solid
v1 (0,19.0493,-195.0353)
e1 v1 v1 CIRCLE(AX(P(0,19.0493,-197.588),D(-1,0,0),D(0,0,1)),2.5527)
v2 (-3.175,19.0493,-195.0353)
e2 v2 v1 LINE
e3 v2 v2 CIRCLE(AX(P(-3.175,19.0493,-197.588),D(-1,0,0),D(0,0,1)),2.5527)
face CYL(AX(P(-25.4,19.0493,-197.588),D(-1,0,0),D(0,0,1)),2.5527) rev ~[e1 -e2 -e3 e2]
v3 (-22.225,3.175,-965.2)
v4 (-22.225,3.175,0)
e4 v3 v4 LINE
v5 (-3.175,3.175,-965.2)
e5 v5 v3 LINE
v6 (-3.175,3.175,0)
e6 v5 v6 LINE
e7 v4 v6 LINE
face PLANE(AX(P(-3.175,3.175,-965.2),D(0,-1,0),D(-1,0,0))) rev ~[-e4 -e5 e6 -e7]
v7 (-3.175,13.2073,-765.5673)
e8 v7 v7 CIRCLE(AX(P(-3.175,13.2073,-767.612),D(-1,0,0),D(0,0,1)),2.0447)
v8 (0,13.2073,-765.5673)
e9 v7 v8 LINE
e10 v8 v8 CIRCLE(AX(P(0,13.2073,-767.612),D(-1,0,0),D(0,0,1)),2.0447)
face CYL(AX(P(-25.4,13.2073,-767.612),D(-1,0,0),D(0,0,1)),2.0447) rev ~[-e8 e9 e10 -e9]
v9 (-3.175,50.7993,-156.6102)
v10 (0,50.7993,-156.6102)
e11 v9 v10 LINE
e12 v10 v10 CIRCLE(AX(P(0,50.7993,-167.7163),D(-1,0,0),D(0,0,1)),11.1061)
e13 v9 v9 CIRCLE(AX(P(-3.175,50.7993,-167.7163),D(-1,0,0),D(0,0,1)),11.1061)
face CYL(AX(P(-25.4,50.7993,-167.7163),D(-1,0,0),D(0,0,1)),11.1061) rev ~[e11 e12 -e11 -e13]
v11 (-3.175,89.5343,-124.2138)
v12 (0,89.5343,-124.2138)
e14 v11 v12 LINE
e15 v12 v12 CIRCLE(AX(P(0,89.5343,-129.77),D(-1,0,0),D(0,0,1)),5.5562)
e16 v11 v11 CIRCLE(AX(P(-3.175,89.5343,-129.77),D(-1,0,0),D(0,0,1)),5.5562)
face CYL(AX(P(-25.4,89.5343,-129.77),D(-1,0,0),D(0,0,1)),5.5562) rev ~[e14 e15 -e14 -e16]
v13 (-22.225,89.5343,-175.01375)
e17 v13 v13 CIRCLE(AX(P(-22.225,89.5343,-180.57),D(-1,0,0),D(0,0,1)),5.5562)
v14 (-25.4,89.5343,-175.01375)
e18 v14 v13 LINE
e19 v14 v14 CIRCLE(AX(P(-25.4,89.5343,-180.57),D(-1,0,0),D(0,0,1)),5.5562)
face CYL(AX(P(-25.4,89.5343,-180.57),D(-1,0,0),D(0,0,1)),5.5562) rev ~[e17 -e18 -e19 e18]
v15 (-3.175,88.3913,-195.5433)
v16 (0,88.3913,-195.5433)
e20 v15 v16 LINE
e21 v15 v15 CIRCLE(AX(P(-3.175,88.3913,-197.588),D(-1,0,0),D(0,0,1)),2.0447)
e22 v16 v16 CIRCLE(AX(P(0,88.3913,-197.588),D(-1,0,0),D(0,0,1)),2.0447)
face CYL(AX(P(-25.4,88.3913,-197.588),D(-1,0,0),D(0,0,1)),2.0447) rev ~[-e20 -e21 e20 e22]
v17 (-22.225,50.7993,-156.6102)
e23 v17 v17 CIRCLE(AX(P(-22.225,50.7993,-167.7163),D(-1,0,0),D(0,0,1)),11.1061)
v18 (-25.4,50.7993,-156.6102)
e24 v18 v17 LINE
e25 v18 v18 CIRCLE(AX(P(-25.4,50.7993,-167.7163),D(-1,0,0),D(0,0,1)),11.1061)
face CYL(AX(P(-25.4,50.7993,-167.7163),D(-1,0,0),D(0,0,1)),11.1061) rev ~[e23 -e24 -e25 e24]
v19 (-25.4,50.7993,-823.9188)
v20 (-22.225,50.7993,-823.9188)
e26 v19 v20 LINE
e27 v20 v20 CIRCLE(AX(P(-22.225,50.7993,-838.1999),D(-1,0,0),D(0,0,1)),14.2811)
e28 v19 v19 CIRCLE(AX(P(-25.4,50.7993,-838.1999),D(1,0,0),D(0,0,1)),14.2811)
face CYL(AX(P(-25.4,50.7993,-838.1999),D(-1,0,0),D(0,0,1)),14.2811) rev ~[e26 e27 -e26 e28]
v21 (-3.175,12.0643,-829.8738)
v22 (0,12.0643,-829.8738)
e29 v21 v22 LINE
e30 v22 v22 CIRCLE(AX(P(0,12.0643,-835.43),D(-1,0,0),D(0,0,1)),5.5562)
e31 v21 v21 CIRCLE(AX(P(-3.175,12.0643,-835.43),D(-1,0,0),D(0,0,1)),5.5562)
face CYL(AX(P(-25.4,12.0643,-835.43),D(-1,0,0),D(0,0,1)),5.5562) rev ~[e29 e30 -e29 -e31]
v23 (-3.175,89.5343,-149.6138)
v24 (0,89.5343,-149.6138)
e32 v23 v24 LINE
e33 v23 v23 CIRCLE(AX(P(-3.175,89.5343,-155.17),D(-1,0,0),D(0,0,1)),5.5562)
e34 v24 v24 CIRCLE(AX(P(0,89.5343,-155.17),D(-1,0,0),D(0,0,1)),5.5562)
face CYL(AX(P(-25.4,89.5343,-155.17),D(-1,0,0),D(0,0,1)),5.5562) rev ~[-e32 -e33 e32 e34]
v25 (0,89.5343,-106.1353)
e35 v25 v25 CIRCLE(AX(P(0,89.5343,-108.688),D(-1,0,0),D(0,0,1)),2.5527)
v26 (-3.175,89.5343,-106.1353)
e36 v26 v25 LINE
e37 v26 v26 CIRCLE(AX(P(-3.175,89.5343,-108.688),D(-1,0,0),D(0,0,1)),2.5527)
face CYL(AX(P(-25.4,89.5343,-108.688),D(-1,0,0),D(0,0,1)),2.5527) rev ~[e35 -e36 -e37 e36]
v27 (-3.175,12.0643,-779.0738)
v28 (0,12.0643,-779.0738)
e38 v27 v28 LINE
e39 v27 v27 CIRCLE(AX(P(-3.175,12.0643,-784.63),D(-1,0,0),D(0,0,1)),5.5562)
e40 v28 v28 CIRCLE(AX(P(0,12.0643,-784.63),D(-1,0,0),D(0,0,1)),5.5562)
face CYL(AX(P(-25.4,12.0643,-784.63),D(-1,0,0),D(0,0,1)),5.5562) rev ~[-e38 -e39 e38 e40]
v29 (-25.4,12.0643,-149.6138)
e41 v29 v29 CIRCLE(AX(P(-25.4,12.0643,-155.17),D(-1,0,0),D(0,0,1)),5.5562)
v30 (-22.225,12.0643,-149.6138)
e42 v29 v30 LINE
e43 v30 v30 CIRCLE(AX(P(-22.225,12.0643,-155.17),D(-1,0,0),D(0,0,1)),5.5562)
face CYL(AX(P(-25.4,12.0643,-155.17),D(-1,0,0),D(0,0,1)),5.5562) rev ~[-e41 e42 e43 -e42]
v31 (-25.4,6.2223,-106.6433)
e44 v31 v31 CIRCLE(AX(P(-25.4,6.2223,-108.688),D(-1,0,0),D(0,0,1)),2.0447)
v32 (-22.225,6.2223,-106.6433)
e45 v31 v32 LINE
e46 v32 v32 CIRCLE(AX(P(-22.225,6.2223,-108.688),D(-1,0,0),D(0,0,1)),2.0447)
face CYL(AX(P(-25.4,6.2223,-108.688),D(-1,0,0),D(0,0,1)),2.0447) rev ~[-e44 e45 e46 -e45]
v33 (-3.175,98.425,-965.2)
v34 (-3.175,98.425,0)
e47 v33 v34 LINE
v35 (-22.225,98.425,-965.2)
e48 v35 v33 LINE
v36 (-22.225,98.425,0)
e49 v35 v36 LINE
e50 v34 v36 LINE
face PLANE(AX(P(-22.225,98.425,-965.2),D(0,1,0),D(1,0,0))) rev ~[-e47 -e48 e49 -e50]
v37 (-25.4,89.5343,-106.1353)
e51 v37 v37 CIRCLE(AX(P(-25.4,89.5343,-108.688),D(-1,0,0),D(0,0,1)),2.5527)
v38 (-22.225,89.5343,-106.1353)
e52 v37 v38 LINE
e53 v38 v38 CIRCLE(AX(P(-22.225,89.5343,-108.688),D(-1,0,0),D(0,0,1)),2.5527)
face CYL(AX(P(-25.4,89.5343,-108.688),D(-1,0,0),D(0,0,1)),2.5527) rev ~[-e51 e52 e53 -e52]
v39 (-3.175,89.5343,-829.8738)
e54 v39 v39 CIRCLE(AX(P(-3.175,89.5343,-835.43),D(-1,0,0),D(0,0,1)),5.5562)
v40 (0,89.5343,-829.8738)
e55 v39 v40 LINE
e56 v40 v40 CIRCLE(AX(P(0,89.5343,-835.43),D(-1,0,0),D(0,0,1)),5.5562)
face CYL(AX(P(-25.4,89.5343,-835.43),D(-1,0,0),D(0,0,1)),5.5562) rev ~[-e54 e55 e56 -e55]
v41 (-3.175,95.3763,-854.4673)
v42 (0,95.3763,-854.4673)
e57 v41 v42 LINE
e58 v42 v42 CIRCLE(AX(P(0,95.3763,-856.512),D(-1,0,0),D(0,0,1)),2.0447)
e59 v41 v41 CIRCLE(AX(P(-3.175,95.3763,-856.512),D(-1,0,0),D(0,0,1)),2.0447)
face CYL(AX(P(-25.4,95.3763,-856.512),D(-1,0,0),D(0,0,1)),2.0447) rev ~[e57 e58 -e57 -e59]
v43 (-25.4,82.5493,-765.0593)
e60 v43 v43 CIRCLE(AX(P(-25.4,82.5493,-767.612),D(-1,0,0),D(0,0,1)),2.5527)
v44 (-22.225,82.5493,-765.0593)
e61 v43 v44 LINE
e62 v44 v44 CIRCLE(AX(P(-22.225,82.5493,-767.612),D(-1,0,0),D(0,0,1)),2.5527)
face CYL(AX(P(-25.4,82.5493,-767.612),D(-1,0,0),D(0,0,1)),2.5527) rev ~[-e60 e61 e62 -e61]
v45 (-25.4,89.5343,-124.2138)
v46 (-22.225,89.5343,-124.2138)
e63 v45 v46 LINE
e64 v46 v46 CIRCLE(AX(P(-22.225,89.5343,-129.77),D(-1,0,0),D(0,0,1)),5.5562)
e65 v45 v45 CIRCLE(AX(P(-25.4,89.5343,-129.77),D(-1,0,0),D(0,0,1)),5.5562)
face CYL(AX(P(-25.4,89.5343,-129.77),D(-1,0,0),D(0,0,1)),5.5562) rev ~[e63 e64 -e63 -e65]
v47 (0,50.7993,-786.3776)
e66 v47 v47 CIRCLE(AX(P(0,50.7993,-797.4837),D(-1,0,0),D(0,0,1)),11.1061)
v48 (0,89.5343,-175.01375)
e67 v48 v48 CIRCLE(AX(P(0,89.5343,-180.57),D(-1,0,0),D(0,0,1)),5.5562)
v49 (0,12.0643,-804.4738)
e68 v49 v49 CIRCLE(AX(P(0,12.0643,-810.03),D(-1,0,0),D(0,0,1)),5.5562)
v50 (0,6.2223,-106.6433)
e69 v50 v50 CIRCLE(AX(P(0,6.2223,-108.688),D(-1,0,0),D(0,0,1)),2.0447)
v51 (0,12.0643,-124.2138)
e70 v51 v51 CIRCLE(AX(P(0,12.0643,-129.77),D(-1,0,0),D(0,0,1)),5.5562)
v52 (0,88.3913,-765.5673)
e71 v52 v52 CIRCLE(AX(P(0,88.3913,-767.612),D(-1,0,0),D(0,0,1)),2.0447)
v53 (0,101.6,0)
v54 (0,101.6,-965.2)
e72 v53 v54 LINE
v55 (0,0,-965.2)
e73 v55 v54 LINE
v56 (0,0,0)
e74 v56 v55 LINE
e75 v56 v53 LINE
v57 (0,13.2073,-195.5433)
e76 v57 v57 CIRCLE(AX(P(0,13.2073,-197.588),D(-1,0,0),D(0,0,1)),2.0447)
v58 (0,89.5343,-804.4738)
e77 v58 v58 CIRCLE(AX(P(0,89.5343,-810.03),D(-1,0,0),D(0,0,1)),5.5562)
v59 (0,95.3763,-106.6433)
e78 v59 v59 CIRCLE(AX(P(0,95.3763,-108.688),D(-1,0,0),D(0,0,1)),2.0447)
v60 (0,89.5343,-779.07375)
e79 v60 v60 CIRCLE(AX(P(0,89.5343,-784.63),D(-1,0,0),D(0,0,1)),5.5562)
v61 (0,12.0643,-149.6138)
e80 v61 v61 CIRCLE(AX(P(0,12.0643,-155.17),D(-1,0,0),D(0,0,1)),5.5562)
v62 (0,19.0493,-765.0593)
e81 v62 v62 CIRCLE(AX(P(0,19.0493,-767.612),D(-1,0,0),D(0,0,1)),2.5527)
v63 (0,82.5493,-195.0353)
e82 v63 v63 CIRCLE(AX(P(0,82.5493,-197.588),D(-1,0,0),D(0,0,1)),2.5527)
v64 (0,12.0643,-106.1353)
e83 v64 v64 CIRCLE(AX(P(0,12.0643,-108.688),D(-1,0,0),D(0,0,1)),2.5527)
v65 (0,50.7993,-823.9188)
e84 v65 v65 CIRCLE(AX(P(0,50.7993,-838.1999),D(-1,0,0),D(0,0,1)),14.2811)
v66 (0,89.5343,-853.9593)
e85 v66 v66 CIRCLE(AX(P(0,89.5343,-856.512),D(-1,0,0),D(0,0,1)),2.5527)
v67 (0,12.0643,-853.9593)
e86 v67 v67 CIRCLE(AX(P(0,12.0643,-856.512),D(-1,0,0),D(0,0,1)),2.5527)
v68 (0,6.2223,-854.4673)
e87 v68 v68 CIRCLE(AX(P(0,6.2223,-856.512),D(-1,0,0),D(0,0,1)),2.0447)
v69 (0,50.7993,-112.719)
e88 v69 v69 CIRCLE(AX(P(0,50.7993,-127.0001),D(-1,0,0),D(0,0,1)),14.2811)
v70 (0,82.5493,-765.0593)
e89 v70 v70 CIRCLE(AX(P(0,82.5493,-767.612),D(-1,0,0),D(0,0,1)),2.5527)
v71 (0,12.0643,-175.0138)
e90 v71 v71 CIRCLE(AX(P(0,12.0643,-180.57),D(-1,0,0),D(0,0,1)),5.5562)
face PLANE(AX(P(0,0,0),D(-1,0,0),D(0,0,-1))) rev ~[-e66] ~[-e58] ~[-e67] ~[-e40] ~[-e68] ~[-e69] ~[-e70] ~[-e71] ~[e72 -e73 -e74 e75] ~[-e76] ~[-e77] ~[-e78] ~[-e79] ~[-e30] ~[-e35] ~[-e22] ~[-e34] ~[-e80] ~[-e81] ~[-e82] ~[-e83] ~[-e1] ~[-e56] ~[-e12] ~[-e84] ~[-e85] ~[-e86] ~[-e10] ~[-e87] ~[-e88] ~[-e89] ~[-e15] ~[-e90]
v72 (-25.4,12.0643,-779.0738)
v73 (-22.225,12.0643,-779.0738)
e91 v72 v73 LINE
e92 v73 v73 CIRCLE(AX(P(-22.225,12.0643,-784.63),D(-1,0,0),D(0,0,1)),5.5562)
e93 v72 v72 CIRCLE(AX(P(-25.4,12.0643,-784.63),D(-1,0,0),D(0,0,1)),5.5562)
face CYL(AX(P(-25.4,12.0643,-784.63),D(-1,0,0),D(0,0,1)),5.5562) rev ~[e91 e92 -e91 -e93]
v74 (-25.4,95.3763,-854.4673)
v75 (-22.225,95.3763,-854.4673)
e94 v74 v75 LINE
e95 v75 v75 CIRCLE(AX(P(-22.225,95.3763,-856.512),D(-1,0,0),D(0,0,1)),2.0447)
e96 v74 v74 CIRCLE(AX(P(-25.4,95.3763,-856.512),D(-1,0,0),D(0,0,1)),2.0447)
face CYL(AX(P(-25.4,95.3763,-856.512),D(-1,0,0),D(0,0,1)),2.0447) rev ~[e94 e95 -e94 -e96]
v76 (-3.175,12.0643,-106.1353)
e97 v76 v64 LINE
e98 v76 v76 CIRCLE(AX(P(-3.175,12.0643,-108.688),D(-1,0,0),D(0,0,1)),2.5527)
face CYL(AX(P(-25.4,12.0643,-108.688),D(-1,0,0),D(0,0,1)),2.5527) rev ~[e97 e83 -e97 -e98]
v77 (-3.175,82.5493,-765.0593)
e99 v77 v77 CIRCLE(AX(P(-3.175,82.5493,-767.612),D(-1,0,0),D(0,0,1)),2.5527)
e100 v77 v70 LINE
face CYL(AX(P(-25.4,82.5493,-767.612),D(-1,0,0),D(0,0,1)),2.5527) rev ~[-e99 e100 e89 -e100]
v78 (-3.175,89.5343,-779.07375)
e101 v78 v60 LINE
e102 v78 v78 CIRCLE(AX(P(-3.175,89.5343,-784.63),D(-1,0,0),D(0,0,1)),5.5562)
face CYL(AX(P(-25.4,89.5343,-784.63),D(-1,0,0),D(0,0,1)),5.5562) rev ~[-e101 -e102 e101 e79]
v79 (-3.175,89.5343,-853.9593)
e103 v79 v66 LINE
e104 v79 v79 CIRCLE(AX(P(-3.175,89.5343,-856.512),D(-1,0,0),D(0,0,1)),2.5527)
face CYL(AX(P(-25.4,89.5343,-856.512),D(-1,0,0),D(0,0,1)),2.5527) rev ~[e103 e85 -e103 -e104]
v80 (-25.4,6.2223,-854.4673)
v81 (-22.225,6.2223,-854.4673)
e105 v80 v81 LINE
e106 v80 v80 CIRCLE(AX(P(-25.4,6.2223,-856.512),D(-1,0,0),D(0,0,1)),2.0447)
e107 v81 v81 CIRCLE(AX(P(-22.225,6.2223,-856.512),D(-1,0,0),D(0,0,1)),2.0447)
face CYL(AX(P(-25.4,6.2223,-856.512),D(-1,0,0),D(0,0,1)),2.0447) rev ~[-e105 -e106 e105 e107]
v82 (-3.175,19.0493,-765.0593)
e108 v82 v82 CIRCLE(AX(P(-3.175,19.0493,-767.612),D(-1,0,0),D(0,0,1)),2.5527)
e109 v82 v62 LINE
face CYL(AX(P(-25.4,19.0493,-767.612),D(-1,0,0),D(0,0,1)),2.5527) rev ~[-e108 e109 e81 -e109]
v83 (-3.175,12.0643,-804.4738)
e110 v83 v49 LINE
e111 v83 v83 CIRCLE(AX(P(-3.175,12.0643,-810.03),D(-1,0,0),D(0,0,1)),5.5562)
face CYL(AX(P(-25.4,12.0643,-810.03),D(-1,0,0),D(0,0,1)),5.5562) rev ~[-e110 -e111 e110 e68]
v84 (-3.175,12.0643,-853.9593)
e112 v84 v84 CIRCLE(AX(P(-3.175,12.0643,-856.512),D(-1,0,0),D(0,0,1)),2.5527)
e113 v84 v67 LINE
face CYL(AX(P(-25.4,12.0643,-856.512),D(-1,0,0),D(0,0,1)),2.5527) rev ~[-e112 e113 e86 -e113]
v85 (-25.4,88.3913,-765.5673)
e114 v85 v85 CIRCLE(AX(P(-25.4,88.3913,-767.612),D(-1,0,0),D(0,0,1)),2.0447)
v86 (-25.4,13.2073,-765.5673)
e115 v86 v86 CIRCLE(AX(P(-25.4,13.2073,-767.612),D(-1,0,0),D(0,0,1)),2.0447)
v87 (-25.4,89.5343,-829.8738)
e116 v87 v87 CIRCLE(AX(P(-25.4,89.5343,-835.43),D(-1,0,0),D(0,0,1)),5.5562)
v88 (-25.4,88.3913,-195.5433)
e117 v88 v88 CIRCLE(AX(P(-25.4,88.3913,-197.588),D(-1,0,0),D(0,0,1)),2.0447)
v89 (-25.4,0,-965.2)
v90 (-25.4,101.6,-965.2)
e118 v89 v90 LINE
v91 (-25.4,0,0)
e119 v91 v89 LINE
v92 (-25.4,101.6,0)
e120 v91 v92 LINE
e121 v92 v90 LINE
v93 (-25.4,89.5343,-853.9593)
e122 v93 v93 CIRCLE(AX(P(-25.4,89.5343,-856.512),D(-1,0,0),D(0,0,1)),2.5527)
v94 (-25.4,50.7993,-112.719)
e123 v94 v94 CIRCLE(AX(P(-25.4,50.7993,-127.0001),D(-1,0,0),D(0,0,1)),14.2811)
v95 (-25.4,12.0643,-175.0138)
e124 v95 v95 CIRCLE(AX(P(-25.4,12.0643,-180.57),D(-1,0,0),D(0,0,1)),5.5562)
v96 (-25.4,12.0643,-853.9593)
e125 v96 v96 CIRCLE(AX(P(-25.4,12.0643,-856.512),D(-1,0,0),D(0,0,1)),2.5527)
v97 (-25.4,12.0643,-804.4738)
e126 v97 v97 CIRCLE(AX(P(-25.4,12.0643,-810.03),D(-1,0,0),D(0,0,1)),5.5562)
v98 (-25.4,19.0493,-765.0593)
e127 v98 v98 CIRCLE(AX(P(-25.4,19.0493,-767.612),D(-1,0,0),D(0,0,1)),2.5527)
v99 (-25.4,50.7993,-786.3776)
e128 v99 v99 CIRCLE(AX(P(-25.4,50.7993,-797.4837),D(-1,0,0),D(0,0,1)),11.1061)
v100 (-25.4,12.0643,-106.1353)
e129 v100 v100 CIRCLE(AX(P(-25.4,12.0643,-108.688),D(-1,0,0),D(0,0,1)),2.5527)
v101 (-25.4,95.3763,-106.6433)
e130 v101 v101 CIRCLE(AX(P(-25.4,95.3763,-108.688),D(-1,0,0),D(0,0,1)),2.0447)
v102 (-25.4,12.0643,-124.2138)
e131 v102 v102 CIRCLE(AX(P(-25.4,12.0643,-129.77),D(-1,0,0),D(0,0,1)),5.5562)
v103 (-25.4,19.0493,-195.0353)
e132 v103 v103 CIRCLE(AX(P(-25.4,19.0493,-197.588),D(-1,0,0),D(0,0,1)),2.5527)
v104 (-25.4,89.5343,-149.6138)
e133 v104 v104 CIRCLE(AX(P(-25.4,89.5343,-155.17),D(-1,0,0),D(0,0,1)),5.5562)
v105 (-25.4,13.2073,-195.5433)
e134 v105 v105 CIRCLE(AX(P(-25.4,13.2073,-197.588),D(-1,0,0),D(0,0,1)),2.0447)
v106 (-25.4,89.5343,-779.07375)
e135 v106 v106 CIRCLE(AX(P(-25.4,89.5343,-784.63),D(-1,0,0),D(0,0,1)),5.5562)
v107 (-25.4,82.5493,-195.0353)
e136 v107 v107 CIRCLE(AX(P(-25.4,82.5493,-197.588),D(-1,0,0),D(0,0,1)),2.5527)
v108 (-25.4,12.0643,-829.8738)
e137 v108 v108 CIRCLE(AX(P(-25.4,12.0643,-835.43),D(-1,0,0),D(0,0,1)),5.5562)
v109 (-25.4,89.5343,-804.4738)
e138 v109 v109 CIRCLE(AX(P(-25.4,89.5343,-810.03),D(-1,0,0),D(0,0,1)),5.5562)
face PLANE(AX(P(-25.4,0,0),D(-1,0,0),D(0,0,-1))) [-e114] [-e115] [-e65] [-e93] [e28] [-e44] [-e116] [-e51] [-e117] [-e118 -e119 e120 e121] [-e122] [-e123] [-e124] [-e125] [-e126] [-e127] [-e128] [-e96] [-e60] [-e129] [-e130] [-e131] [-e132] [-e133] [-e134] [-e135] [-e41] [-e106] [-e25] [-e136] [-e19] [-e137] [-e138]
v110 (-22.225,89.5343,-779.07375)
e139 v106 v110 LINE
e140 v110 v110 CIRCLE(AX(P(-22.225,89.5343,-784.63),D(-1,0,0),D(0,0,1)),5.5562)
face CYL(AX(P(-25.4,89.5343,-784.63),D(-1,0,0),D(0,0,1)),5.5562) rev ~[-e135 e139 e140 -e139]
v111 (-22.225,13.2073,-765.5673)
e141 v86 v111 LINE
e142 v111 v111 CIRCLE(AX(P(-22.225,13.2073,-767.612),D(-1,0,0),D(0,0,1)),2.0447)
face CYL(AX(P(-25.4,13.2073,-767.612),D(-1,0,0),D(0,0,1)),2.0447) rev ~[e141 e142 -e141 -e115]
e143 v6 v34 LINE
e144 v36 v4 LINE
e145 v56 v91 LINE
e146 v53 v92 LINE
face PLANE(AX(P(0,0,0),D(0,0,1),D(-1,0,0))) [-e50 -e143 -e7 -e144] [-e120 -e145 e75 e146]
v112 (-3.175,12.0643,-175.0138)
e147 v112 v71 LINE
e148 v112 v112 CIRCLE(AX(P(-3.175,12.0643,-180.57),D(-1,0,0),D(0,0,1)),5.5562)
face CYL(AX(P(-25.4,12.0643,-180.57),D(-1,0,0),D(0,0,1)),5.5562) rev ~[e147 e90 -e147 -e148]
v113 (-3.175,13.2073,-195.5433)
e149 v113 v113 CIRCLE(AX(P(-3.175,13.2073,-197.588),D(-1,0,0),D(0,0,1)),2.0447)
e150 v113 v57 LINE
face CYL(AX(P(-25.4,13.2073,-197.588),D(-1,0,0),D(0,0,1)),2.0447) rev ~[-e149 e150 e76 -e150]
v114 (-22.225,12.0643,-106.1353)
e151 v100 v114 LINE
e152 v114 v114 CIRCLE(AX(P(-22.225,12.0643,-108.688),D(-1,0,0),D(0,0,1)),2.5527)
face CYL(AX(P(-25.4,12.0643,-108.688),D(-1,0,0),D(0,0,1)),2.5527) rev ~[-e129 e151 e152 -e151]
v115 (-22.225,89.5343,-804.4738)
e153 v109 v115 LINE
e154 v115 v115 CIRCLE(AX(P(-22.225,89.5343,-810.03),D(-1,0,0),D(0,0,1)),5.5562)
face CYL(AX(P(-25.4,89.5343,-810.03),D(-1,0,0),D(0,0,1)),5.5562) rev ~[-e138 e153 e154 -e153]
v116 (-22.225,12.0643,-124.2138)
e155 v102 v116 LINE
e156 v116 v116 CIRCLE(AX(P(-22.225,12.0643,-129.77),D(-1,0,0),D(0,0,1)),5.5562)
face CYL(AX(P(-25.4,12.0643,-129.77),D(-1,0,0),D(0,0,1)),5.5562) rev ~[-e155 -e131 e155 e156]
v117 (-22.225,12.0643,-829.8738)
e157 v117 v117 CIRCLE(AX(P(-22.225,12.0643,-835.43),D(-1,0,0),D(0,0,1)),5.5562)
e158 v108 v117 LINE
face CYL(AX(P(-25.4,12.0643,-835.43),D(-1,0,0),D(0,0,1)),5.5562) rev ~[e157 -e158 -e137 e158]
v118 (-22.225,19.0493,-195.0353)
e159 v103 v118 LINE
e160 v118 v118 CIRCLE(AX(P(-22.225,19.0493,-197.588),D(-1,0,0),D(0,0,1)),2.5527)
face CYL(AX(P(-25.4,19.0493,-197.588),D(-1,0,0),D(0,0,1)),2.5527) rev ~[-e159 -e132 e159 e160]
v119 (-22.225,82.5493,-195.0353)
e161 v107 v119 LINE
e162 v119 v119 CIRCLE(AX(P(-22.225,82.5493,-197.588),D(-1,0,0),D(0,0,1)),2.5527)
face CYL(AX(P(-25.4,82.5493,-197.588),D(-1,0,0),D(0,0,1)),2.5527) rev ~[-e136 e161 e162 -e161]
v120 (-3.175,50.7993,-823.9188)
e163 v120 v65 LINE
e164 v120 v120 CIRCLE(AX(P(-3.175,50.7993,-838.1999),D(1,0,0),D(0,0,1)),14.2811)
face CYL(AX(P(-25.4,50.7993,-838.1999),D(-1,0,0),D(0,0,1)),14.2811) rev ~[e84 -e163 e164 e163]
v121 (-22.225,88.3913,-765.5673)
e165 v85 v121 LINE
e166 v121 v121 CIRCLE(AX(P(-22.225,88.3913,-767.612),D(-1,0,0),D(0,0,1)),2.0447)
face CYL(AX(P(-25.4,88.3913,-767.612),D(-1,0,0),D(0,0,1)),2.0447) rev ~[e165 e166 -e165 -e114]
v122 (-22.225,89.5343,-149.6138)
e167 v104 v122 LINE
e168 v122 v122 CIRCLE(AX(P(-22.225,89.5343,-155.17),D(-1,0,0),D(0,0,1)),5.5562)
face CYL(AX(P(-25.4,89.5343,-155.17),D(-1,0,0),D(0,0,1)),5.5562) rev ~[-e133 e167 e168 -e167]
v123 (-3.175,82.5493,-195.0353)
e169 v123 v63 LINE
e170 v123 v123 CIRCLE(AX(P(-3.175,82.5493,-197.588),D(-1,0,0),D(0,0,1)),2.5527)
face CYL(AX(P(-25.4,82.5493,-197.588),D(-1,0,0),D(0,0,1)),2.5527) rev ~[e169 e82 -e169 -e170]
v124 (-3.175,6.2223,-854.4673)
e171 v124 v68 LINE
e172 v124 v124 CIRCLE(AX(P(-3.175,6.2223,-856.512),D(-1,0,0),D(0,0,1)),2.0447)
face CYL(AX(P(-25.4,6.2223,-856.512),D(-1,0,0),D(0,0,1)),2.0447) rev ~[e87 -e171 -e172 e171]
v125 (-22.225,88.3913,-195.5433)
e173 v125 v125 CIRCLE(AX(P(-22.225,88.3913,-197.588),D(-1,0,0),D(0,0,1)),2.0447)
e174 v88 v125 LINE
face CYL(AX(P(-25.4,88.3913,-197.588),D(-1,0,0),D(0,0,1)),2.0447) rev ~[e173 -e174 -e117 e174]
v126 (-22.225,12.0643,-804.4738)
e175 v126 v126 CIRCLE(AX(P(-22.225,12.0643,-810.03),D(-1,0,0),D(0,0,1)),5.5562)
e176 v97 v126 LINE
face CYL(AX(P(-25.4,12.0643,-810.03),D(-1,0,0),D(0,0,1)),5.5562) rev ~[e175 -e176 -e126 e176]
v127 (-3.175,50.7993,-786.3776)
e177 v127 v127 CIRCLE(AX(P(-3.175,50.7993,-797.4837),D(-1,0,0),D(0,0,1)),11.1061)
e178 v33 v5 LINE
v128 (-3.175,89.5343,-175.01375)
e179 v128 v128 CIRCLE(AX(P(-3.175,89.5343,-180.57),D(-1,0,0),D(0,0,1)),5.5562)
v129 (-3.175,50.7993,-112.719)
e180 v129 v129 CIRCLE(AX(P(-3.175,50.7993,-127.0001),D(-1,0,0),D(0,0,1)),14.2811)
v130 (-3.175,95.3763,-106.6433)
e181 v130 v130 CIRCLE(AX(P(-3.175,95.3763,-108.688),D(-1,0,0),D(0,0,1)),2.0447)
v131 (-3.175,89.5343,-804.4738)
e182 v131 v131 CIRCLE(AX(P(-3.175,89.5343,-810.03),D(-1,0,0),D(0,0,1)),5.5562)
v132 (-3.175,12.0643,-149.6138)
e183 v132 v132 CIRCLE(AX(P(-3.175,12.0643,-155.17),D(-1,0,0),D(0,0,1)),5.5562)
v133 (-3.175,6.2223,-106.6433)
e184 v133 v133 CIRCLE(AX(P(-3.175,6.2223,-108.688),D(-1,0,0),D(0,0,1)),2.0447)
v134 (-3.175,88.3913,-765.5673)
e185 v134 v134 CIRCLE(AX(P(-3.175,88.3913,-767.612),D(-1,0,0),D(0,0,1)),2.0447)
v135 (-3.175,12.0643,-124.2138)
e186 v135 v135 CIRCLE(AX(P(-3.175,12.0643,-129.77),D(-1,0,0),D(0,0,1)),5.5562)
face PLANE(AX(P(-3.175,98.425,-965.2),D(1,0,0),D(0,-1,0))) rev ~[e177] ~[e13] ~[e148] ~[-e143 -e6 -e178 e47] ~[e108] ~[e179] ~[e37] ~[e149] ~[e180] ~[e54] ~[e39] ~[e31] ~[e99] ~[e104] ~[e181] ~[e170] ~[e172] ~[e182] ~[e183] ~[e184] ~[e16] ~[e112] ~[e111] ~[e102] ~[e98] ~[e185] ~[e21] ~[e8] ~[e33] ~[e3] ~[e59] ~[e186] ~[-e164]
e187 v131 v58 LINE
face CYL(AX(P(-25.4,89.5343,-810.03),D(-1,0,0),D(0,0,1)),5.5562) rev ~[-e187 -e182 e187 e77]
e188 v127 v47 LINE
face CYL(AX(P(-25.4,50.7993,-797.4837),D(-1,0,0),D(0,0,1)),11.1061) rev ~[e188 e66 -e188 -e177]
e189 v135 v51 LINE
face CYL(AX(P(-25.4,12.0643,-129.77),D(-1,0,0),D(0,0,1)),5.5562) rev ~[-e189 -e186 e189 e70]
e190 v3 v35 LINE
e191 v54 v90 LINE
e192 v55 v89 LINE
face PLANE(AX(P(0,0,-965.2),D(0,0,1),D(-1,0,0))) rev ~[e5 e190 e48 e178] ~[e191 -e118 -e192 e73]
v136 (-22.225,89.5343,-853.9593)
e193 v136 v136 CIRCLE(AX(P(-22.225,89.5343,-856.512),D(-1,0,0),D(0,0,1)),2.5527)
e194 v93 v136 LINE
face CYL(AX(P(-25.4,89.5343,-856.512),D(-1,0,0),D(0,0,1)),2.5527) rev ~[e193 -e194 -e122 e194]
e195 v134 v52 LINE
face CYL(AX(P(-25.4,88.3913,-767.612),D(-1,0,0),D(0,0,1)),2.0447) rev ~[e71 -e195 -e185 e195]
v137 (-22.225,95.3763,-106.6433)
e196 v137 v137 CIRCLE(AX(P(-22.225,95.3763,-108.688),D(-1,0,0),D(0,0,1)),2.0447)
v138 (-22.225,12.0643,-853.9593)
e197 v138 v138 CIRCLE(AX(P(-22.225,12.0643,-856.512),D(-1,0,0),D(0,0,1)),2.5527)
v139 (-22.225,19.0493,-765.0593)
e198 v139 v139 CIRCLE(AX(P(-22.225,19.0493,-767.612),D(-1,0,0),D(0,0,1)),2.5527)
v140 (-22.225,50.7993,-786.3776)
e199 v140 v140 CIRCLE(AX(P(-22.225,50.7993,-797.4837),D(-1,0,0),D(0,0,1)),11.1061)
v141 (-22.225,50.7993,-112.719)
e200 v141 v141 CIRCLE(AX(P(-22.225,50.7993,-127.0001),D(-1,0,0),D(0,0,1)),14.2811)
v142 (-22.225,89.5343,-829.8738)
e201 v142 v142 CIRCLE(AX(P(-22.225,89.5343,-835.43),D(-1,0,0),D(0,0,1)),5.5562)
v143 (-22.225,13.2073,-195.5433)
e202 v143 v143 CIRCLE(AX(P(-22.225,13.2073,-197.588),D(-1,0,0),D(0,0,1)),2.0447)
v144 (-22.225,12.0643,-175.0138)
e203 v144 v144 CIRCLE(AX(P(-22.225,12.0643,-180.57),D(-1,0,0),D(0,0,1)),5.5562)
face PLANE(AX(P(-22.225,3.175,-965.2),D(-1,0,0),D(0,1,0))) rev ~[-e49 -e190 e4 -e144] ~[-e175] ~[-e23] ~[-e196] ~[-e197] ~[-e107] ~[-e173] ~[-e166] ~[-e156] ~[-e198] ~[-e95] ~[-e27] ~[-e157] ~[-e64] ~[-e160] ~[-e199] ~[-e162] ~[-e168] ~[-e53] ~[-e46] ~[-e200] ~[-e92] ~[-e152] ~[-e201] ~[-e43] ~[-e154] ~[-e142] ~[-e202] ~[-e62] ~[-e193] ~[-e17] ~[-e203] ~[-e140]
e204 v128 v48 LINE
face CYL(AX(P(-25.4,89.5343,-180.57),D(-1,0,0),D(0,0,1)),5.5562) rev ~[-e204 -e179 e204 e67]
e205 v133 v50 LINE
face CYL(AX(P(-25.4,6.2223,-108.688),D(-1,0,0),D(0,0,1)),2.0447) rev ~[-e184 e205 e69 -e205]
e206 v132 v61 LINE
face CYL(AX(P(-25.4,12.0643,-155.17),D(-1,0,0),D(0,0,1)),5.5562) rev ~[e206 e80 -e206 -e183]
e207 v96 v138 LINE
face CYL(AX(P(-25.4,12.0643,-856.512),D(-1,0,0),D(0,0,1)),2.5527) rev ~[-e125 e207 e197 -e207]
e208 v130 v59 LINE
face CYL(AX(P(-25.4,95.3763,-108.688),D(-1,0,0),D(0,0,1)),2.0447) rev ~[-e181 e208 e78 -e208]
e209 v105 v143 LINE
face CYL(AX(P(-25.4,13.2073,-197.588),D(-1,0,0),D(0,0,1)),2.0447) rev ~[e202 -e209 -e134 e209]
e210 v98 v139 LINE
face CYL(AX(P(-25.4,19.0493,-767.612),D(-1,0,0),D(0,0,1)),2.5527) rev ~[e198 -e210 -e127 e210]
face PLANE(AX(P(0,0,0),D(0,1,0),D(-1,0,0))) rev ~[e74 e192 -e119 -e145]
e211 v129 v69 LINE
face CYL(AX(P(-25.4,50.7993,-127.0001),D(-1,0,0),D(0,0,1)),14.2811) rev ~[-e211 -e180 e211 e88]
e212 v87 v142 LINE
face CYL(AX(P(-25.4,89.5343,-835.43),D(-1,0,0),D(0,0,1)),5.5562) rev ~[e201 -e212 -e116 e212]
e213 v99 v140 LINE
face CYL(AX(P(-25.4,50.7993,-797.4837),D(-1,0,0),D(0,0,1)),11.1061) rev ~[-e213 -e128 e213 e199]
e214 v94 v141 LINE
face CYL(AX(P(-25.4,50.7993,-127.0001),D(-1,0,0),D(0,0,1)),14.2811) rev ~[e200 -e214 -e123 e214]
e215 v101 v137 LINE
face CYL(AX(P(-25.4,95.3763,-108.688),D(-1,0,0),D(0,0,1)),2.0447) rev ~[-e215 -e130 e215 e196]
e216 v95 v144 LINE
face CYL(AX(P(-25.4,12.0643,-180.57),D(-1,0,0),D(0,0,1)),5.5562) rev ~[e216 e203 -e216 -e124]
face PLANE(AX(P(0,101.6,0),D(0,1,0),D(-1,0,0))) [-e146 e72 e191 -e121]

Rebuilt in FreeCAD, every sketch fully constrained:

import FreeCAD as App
import Part
import Sketcher
Q = App.Units.Quantity

doc = App.newDocument("Part")
params = doc.addObject("Spreadsheet::Sheet", "Params")
for row, (alias, value) in enumerate([
    ("sketch1_width", "1 in"),
    ("sketch1_height", "38 in"),
    ("pad1_length", "4 in"),
    ("sketch2_width", "0.75 in"),
    ("sketch2_height", "3.75 in"),
    ("pocket1_length", "100 in"),
    ("pocket2_length", "100 in"),
    ("sketch4_diameter", "0.161 in"),
    ("sketch4_diameter2", "0.201 in"),
    ("sketch4_diameter3", "0.4375 in"),
    ("pocket3_length", "100 in"),
    ("sketch5_diameter", "0.161 in"),
    ("sketch5_diameter2", "0.201 in"),
    ("sketch5_diameter3", "0.4375 in"),
], start=1):
    params.set(f"A{row}", alias)
    params.set(f"B{row}", "=" + value)
    params.setAlias(f"B{row}", alias)

body = doc.addObject("PartDesign::Body", "Body")

# Sketch on XZ plane
sketch1 = body.newObject("Sketcher::SketchObject", "Sketch")
sketch1.AttachmentSupport = (doc.getObject("XZ_Plane"), [""])
sketch1.MapMode = "FlatFace"
sketch1.addGeometry(Part.LineSegment(App.Vector(-25.4, 0, 0), App.Vector(0, 0, 0)), False)
sketch1.addGeometry(Part.LineSegment(App.Vector(0, 0, 0), App.Vector(0, -965.2, 0)), False)
sketch1.addGeometry(Part.LineSegment(App.Vector(0, -965.2, 0), App.Vector(-25.4, -965.2, 0)), False)
sketch1.addGeometry(Part.LineSegment(App.Vector(-25.4, -965.2, 0), App.Vector(-25.4, 0, 0)), False)
sketch1.addConstraint(Sketcher.Constraint("Coincident", 0, 2, 1, 1))
sketch1.addConstraint(Sketcher.Constraint("Coincident", 1, 2, 2, 1))
sketch1.addConstraint(Sketcher.Constraint("Coincident", 2, 2, 3, 1))
sketch1.addConstraint(Sketcher.Constraint("Coincident", 3, 2, 0, 1))
sketch1.addConstraint(Sketcher.Constraint("Horizontal", 0))
sketch1.addConstraint(Sketcher.Constraint("Vertical", 1))
sketch1.addConstraint(Sketcher.Constraint("Horizontal", 2))
sketch1.addConstraint(Sketcher.Constraint("Vertical", 3))
sketch1.addConstraint(Sketcher.Constraint("Coincident", 0, 2, -1, 1))
sketch1.addConstraint(Sketcher.Constraint("DistanceX", 0, 1, 0, 2, Q("1 in")))
sketch1.addConstraint(Sketcher.Constraint("DistanceY", 1, 2, 1, 1, Q("38 in")))
sketch1.setExpression("Constraints[9]", "Params.sketch1_width")
sketch1.setExpression("Constraints[10]", "Params.sketch1_height")
pad1 = body.newObject("PartDesign::Pad", "Pad")
pad1.Profile = sketch1
pad1.setExpression("Length", "Params.pad1_length")
pad1.Reversed = True

# Sketch on XY plane
sketch2 = body.newObject("Sketcher::SketchObject", "Sketch001")
sketch2.AttachmentSupport = (doc.getObject("XY_Plane"), [""])
sketch2.MapMode = "FlatFace"
sketch2.AttachmentOffset = App.Placement(App.Vector(0, 0, -38 * 25.4), App.Rotation())
sketch2.addGeometry(Part.LineSegment(App.Vector(-22.225, 3.175, 0), App.Vector(-22.225, 98.425, 0)), False)
sketch2.addGeometry(Part.LineSegment(App.Vector(-22.225, 98.425, 0), App.Vector(-3.175, 98.425, 0)), False)
sketch2.addGeometry(Part.LineSegment(App.Vector(-3.175, 98.425, 0), App.Vector(-3.175, 3.175, 0)), False)
sketch2.addGeometry(Part.LineSegment(App.Vector(-3.175, 3.175, 0), App.Vector(-22.225, 3.175, 0)), False)
sketch2.addConstraint(Sketcher.Constraint("Coincident", 0, 2, 1, 1))
sketch2.addConstraint(Sketcher.Constraint("Coincident", 1, 2, 2, 1))
sketch2.addConstraint(Sketcher.Constraint("Coincident", 2, 2, 3, 1))
sketch2.addConstraint(Sketcher.Constraint("Coincident", 3, 2, 0, 1))
sketch2.addConstraint(Sketcher.Constraint("Vertical", 0))
sketch2.addConstraint(Sketcher.Constraint("Horizontal", 1))
sketch2.addConstraint(Sketcher.Constraint("Vertical", 2))
sketch2.addConstraint(Sketcher.Constraint("Horizontal", 3))
sketch2.addConstraint(Sketcher.Constraint("DistanceX", 1, 1, 1, 2, Q("0.75 in")))
sketch2.addConstraint(Sketcher.Constraint("DistanceY", 0, 1, 0, 2, Q("3.75 in")))
sketch2.addConstraint(Sketcher.Constraint("DistanceX", 0, 2, -1, 1, Q("0.875 in")))
sketch2.addConstraint(Sketcher.Constraint("DistanceY", -1, 1, 0, 2, Q("3.875 in")))
sketch2.setExpression("Constraints[8]", "Params.sketch2_width")
sketch2.setExpression("Constraints[9]", "Params.sketch2_height")
pocket1 = body.newObject("PartDesign::Pocket", "Pocket")
pocket1.Profile = sketch2
pocket1.setExpression("Length", "Params.pocket1_length")
pocket1.Reversed = True

# Sketch on YZ plane
sketch3 = body.newObject("Sketcher::SketchObject", "Sketch002")
sketch3.AttachmentSupport = (doc.getObject("YZ_Plane"), [""])
sketch3.MapMode = "FlatFace"
sketch3.AttachmentOffset = App.Placement(App.Vector(0, 0, -1 * 25.4), App.Rotation())
sketch3.addGeometry(Part.Circle(App.Vector(50.7993, -838.1999, 0), App.Vector(0, 0, 1), 14.2811), False)
sketch3.addConstraint(Sketcher.Constraint("DistanceY", 0, 3, -1, 1, Q("33 in")))
sketch3.addConstraint(Sketcher.Constraint("Diameter", 0, Q("1.1245 in")))
sketch3.addConstraint(Sketcher.Constraint("DistanceX", -1, 1, 0, 3, 50.7993))
pocket2 = body.newObject("PartDesign::Pocket", "Pocket001")
pocket2.Profile = sketch3
pocket2.setExpression("Length", "Params.pocket2_length")
pocket2.Reversed = True

# Sketch on YZ plane
sketch4 = body.newObject("Sketcher::SketchObject", "Sketch003")
sketch4.AttachmentSupport = (doc.getObject("YZ_Plane"), [""])
sketch4.MapMode = "FlatFace"
sketch4.AttachmentOffset = App.Placement(App.Vector(0, 0, -1 * 25.4), App.Rotation())
sketch4.addGeometry(Part.Circle(App.Vector(6.2223, -856.512, 0), App.Vector(0, 0, 1), 2.0447), False)
sketch4.addGeometry(Part.Circle(App.Vector(88.3913, -767.612, 0), App.Vector(0, 0, 1), 2.0447), False)
sketch4.addGeometry(Part.Circle(App.Vector(12.0643, -856.512, 0), App.Vector(0, 0, 1), 2.5527), False)
sketch4.addGeometry(Part.Circle(App.Vector(82.5493, -767.612, 0), App.Vector(0, 0, 1), 2.5527), False)
sketch4.addGeometry(Part.Circle(App.Vector(12.0643, -784.63, 0), App.Vector(0, 0, 1), 5.5562), False)
sketch4.addGeometry(Part.Circle(App.Vector(12.0643, -835.43, 0), App.Vector(0, 0, 1), 5.5562), False)
sketch4.addGeometry(Part.Circle(App.Vector(89.5343, -784.63, 0), App.Vector(0, 0, 1), 5.5562), False)
sketch4.addGeometry(Part.Circle(App.Vector(50.7993, -797.4837, 0), App.Vector(0, 0, 1), 11.1061), False)
sketch4.addGeometry(Part.Circle(App.Vector(89.5343, -810.03, 0), App.Vector(0, 0, 1), 5.5562), False)
sketch4.addGeometry(Part.Circle(App.Vector(89.5343, -835.43, 0), App.Vector(0, 0, 1), 5.5562), False)
sketch4.addGeometry(Part.Circle(App.Vector(12.0643, -810.03, 0), App.Vector(0, 0, 1), 5.5562), False)
sketch4.addGeometry(Part.Circle(App.Vector(19.0493, -767.612, 0), App.Vector(0, 0, 1), 2.5527), False)
sketch4.addGeometry(Part.Circle(App.Vector(89.5343, -856.512, 0), App.Vector(0, 0, 1), 2.5527), False)
sketch4.addGeometry(Part.Circle(App.Vector(13.2073, -767.612, 0), App.Vector(0, 0, 1), 2.0447), False)
sketch4.addGeometry(Part.Circle(App.Vector(95.3763, -856.512, 0), App.Vector(0, 0, 1), 2.0447), False)
sketch4.addConstraint(Sketcher.Constraint("Equal", 0, 1))
sketch4.addConstraint(Sketcher.Constraint("Equal", 2, 3))
sketch4.addConstraint(Sketcher.Constraint("Equal", 4, 5))
sketch4.addConstraint(Sketcher.Constraint("Equal", 5, 6))
sketch4.addConstraint(Sketcher.Constraint("Equal", 6, 8))
sketch4.addConstraint(Sketcher.Constraint("Equal", 8, 9))
sketch4.addConstraint(Sketcher.Constraint("Equal", 9, 10))
sketch4.addConstraint(Sketcher.Constraint("Equal", 3, 11))
sketch4.addConstraint(Sketcher.Constraint("Equal", 11, 12))
sketch4.addConstraint(Sketcher.Constraint("Equal", 1, 13))
sketch4.addConstraint(Sketcher.Constraint("Equal", 13, 14))
sketch4.addConstraint(Sketcher.Constraint("Horizontal", 0, 3, 2, 3))
sketch4.addConstraint(Sketcher.Constraint("Horizontal", 1, 3, 3, 3))
sketch4.addConstraint(Sketcher.Constraint("Horizontal", 4, 3, 6, 3))
sketch4.addConstraint(Sketcher.Constraint("Horizontal", 5, 3, 9, 3))
sketch4.addConstraint(Sketcher.Constraint("Horizontal", 8, 3, 10, 3))
sketch4.addConstraint(Sketcher.Constraint("Horizontal", 3, 3, 11, 3))
sketch4.addConstraint(Sketcher.Constraint("Horizontal", 2, 3, 12, 3))
sketch4.addConstraint(Sketcher.Constraint("Horizontal", 11, 3, 13, 3))
sketch4.addConstraint(Sketcher.Constraint("Horizontal", 12, 3, 14, 3))
sketch4.addConstraint(Sketcher.Constraint("Vertical", 2, 3, 4, 3))
sketch4.addConstraint(Sketcher.Constraint("Vertical", 4, 3, 5, 3))
sketch4.addConstraint(Sketcher.Constraint("Vertical", 6, 3, 8, 3))
sketch4.addConstraint(Sketcher.Constraint("Vertical", 8, 3, 9, 3))
sketch4.addConstraint(Sketcher.Constraint("Vertical", 5, 3, 10, 3))
sketch4.addConstraint(Sketcher.Constraint("Vertical", 9, 3, 12, 3))
sketch4.addConstraint(Sketcher.Constraint("DistanceY", 5, 3, 4, 3, Q("2 in")))
sketch4.addConstraint(Sketcher.Constraint("Diameter", 0, Q("0.161 in")))
sketch4.addConstraint(Sketcher.Constraint("Diameter", 2, Q("0.201 in")))
sketch4.addConstraint(Sketcher.Constraint("Diameter", 4, Q("0.4375 in")))
sketch4.addConstraint(Sketcher.Constraint("DistanceY", 8, 3, 6, 3, Q("1 in")))
sketch4.addConstraint(Sketcher.Constraint("Diameter", 7, Q("0.8745 in")))
sketch4.addConstraint(Sketcher.Constraint("DistanceY", 0, 3, 1, 3, Q("3.5 in")))
sketch4.addConstraint(Sketcher.Constraint("DistanceX", 11, 3, 3, 3, Q("2.5 in")))
sketch4.addConstraint(Sketcher.Constraint("DistanceX", 0, 3, 2, 3, Q("0.23 in")))
sketch4.addConstraint(Sketcher.Constraint("DistanceX", 3, 3, 1, 3, Q("0.23 in")))
sketch4.addConstraint(Sketcher.Constraint("DistanceY", 2, 3, 4, 3, Q("2.83 in")))
sketch4.addConstraint(Sketcher.Constraint("DistanceX", 4, 3, 6, 3, Q("3.05 in")))
sketch4.addConstraint(Sketcher.Constraint("DistanceX", 7, 3, 3, 3, Q("1.25 in")))
sketch4.addConstraint(Sketcher.Constraint("DistanceX", 13, 3, 11, 3, Q("0.23 in")))
sketch4.addConstraint(Sketcher.Constraint("DistanceX", 12, 3, 14, 3, Q("0.23 in")))
sketch4.addConstraint(Sketcher.Constraint("DistanceY", 7, 3, -1, 1, Q("31.397 in")))
sketch4.addConstraint(Sketcher.Constraint("DistanceX", 0, 3, 1, 3, Q("3.235 in")))
sketch4.addConstraint(Sketcher.Constraint("DistanceX", -1, 1, 0, 3, 6.2223))
sketch4.addConstraint(Sketcher.Constraint("DistanceY", 0, 3, -1, 1, 856.512))
sketch4.setExpression("Constraints[27]", "Params.sketch4_diameter")
sketch4.setExpression("Constraints[28]", "Params.sketch4_diameter2")
sketch4.setExpression("Constraints[29]", "Params.sketch4_diameter3")
pocket3 = body.newObject("PartDesign::Pocket", "Pocket002")
pocket3.Profile = sketch4
pocket3.setExpression("Length", "Params.pocket3_length")
pocket3.Reversed = True

# Sketch on YZ plane
sketch5 = body.newObject("Sketcher::SketchObject", "Sketch004")
sketch5.AttachmentSupport = (doc.getObject("YZ_Plane"), [""])
sketch5.MapMode = "FlatFace"
sketch5.AttachmentOffset = App.Placement(App.Vector(0, 0, -1 * 25.4), App.Rotation())
sketch5.addGeometry(Part.Circle(App.Vector(50.7993, -127.0001, 0), App.Vector(0, 0, 1), 14.2811), False)
sketch5.addGeometry(Part.Circle(App.Vector(50.7993, -838.1999, 0), App.Vector(0, 0, 1), 14.2811), False)
sketch5.addGeometry(Part.Circle(App.Vector(6.2223, -856.512, 0), App.Vector(0, 0, 1), 2.0447), False)
sketch5.addGeometry(Part.Circle(App.Vector(88.3913, -767.612, 0), App.Vector(0, 0, 1), 2.0447), False)
sketch5.addGeometry(Part.Circle(App.Vector(12.0643, -856.512, 0), App.Vector(0, 0, 1), 2.5527), False)
sketch5.addGeometry(Part.Circle(App.Vector(82.5493, -767.612, 0), App.Vector(0, 0, 1), 2.5527), False)
sketch5.addGeometry(Part.Circle(App.Vector(12.0643, -784.63, 0), App.Vector(0, 0, 1), 5.5562), False)
sketch5.addGeometry(Part.Circle(App.Vector(12.0643, -835.43, 0), App.Vector(0, 0, 1), 5.5562), False)
sketch5.addGeometry(Part.Circle(App.Vector(89.5343, -784.63, 0), App.Vector(0, 0, 1), 5.5562), False)
sketch5.addGeometry(Part.Circle(App.Vector(50.7993, -797.4837, 0), App.Vector(0, 0, 1), 11.1061), False)
sketch5.addGeometry(Part.Circle(App.Vector(89.5343, -810.03, 0), App.Vector(0, 0, 1), 5.5562), False)
sketch5.addGeometry(Part.Circle(App.Vector(89.5343, -835.43, 0), App.Vector(0, 0, 1), 5.5562), False)
sketch5.addGeometry(Part.Circle(App.Vector(12.0643, -810.03, 0), App.Vector(0, 0, 1), 5.5562), False)
sketch5.addGeometry(Part.Circle(App.Vector(19.0493, -767.612, 0), App.Vector(0, 0, 1), 2.5527), False)
sketch5.addGeometry(Part.Circle(App.Vector(89.5343, -856.512, 0), App.Vector(0, 0, 1), 2.5527), False)
sketch5.addGeometry(Part.Circle(App.Vector(13.2073, -767.612, 0), App.Vector(0, 0, 1), 2.0447), False)
sketch5.addGeometry(Part.Circle(App.Vector(95.3763, -856.512, 0), App.Vector(0, 0, 1), 2.0447), False)
sketch5.addGeometry(Part.Circle(App.Vector(88.3913, -197.588, 0), App.Vector(0, 0, 1), 2.0447), False)
sketch5.addGeometry(Part.Circle(App.Vector(82.5493, -197.588, 0), App.Vector(0, 0, 1), 2.5527), False)
sketch5.addGeometry(Part.Circle(App.Vector(89.5343, -180.57, 0), App.Vector(0, 0, 1), 5.5562), False)
sketch5.addGeometry(Part.Circle(App.Vector(89.5343, -155.17, 0), App.Vector(0, 0, 1), 5.5562), False)
sketch5.addGeometry(Part.Circle(App.Vector(89.5343, -129.77, 0), App.Vector(0, 0, 1), 5.5562), False)
sketch5.addGeometry(Part.Circle(App.Vector(95.3763, -108.688, 0), App.Vector(0, 0, 1), 2.0447), False)
sketch5.addGeometry(Part.Circle(App.Vector(89.5343, -108.688, 0), App.Vector(0, 0, 1), 2.5527), False)
sketch5.addGeometry(Part.Circle(App.Vector(6.2223, -108.688, 0), App.Vector(0, 0, 1), 2.0447), False)
sketch5.addGeometry(Part.Circle(App.Vector(12.0643, -108.688, 0), App.Vector(0, 0, 1), 2.5527), False)
sketch5.addGeometry(Part.Circle(App.Vector(12.0643, -129.77, 0), App.Vector(0, 0, 1), 5.5562), False)
sketch5.addGeometry(Part.Circle(App.Vector(12.0643, -155.17, 0), App.Vector(0, 0, 1), 5.5562), False)
sketch5.addGeometry(Part.Circle(App.Vector(12.0643, -180.57, 0), App.Vector(0, 0, 1), 5.5562), False)
sketch5.addGeometry(Part.Circle(App.Vector(13.2073, -197.588, 0), App.Vector(0, 0, 1), 2.0447), False)
sketch5.addGeometry(Part.Circle(App.Vector(19.0493, -197.588, 0), App.Vector(0, 0, 1), 2.5527), False)
sketch5.addGeometry(Part.Circle(App.Vector(50.7993, -167.7163, 0), App.Vector(0, 0, 1), 11.1061), False)
sketch5.addConstraint(Sketcher.Constraint("Equal", 0, 1))
sketch5.addConstraint(Sketcher.Constraint("Equal", 2, 3))
sketch5.addConstraint(Sketcher.Constraint("Equal", 4, 5))
sketch5.addConstraint(Sketcher.Constraint("Equal", 6, 7))
sketch5.addConstraint(Sketcher.Constraint("Equal", 7, 8))
sketch5.addConstraint(Sketcher.Constraint("Equal", 8, 10))
sketch5.addConstraint(Sketcher.Constraint("Equal", 10, 11))
sketch5.addConstraint(Sketcher.Constraint("Equal", 11, 12))
sketch5.addConstraint(Sketcher.Constraint("Equal", 5, 13))
sketch5.addConstraint(Sketcher.Constraint("Equal", 13, 14))
sketch5.addConstraint(Sketcher.Constraint("Equal", 3, 15))
sketch5.addConstraint(Sketcher.Constraint("Equal", 15, 16))
sketch5.addConstraint(Sketcher.Constraint("Equal", 16, 17))
sketch5.addConstraint(Sketcher.Constraint("Equal", 14, 18))
sketch5.addConstraint(Sketcher.Constraint("Equal", 12, 19))
sketch5.addConstraint(Sketcher.Constraint("Equal", 19, 20))
sketch5.addConstraint(Sketcher.Constraint("Equal", 20, 21))
sketch5.addConstraint(Sketcher.Constraint("Equal", 17, 22))
sketch5.addConstraint(Sketcher.Constraint("Equal", 18, 23))
sketch5.addConstraint(Sketcher.Constraint("Equal", 22, 24))
sketch5.addConstraint(Sketcher.Constraint("Equal", 23, 25))
sketch5.addConstraint(Sketcher.Constraint("Equal", 21, 26))
sketch5.addConstraint(Sketcher.Constraint("Equal", 26, 27))
sketch5.addConstraint(Sketcher.Constraint("Equal", 27, 28))
sketch5.addConstraint(Sketcher.Constraint("Equal", 24, 29))
sketch5.addConstraint(Sketcher.Constraint("Equal", 25, 30))
sketch5.addConstraint(Sketcher.Constraint("Equal", 9, 31))
sketch5.addConstraint(Sketcher.Constraint("Horizontal", 2, 3, 4, 3))
sketch5.addConstraint(Sketcher.Constraint("Horizontal", 3, 3, 5, 3))
sketch5.addConstraint(Sketcher.Constraint("Horizontal", 6, 3, 8, 3))
sketch5.addConstraint(Sketcher.Constraint("Horizontal", 7, 3, 11, 3))
sketch5.addConstraint(Sketcher.Constraint("Horizontal", 10, 3, 12, 3))
sketch5.addConstraint(Sketcher.Constraint("Horizontal", 5, 3, 13, 3))
sketch5.addConstraint(Sketcher.Constraint("Horizontal", 4, 3, 14, 3))
sketch5.addConstraint(Sketcher.Constraint("Horizontal", 13, 3, 15, 3))
sketch5.addConstraint(Sketcher.Constraint("Horizontal", 14, 3, 16, 3))
sketch5.addConstraint(Sketcher.Constraint("Horizontal", 17, 3, 18, 3))
sketch5.addConstraint(Sketcher.Constraint("Horizontal", 22, 3, 23, 3))
sketch5.addConstraint(Sketcher.Constraint("Horizontal", 23, 3, 24, 3))
sketch5.addConstraint(Sketcher.Constraint("Horizontal", 24, 3, 25, 3))
sketch5.addConstraint(Sketcher.Constraint("Horizontal", 21, 3, 26, 3))
sketch5.addConstraint(Sketcher.Constraint("Horizontal", 20, 3, 27, 3))
sketch5.addConstraint(Sketcher.Constraint("Horizontal", 19, 3, 28, 3))
sketch5.addConstraint(Sketcher.Constraint("Horizontal", 18, 3, 29, 3))
sketch5.addConstraint(Sketcher.Constraint("Horizontal", 29, 3, 30, 3))
sketch5.addConstraint(Sketcher.Constraint("Vertical", 0, 3, 1, 3))
sketch5.addConstraint(Sketcher.Constraint("Vertical", 4, 3, 6, 3))
sketch5.addConstraint(Sketcher.Constraint("Vertical", 6, 3, 7, 3))
sketch5.addConstraint(Sketcher.Constraint("Vertical", 1, 3, 9, 3))
sketch5.addConstraint(Sketcher.Constraint("Vertical", 8, 3, 10, 3))
sketch5.addConstraint(Sketcher.Constraint("Vertical", 10, 3, 11, 3))
sketch5.addConstraint(Sketcher.Constraint("Vertical", 7, 3, 12, 3))
sketch5.addConstraint(Sketcher.Constraint("Vertical", 11, 3, 14, 3))
sketch5.addConstraint(Sketcher.Constraint("Vertical", 3, 3, 17, 3))
sketch5.addConstraint(Sketcher.Constraint("Vertical", 5, 3, 18, 3))
sketch5.addConstraint(Sketcher.Constraint("Vertical", 14, 3, 19, 3))
sketch5.addConstraint(Sketcher.Constraint("Vertical", 19, 3, 20, 3))
sketch5.addConstraint(Sketcher.Constraint("Vertical", 20, 3, 21, 3))
sketch5.addConstraint(Sketcher.Constraint("Vertical", 16, 3, 22, 3))
sketch5.addConstraint(Sketcher.Constraint("Vertical", 21, 3, 23, 3))
sketch5.addConstraint(Sketcher.Constraint("Vertical", 2, 3, 24, 3))
sketch5.addConstraint(Sketcher.Constraint("Vertical", 12, 3, 25, 3))
sketch5.addConstraint(Sketcher.Constraint("Vertical", 25, 3, 26, 3))
sketch5.addConstraint(Sketcher.Constraint("Vertical", 26, 3, 27, 3))
sketch5.addConstraint(Sketcher.Constraint("Vertical", 27, 3, 28, 3))
sketch5.addConstraint(Sketcher.Constraint("Vertical", 15, 3, 29, 3))
sketch5.addConstraint(Sketcher.Constraint("Vertical", 13, 3, 30, 3))
sketch5.addConstraint(Sketcher.Constraint("Vertical", 9, 3, 31, 3))
sketch5.addConstraint(Sketcher.Constraint("DistanceY", 0, 3, -1, 1, Q("5 in")))
sketch5.addConstraint(Sketcher.Constraint("DistanceY", 7, 3, 6, 3, Q("2 in")))
sketch5.addConstraint(Sketcher.Constraint("DistanceY", 19, 3, 21, 3, Q("2 in")))
sketch5.addConstraint(Sketcher.Constraint("Diameter", 2, Q("0.161 in")))
sketch5.addConstraint(Sketcher.Constraint("Diameter", 4, Q("0.201 in")))
sketch5.addConstraint(Sketcher.Constraint("Diameter", 6, Q("0.4375 in")))
sketch5.addConstraint(Sketcher.Constraint("DistanceY", 1, 3, -1, 1, Q("33 in")))
sketch5.addConstraint(Sketcher.Constraint("DistanceY", 10, 3, 8, 3, Q("1 in")))
sketch5.addConstraint(Sketcher.Constraint("DistanceY", 19, 3, 20, 3, Q("1 in")))
sketch5.addConstraint(Sketcher.Constraint("Diameter", 0, Q("1.1245 in")))
sketch5.addConstraint(Sketcher.Constraint("Diameter", 9, Q("0.8745 in")))
sketch5.addConstraint(Sketcher.Constraint("DistanceY", 2, 3, 3, 3, Q("3.5 in")))
sketch5.addConstraint(Sketcher.Constraint("DistanceX", 13, 3, 5, 3, Q("2.5 in")))
sketch5.addConstraint(Sketcher.Constraint("DistanceY", 17, 3, 22, 3, Q("3.5 in")))
sketch5.addConstraint(Sketcher.Constraint("DistanceX", 1, 3, 3, 3, Q("1.48 in")))
sketch5.addConstraint(Sketcher.Constraint("DistanceX", 2, 3, 4, 3, Q("0.23 in")))
sketch5.addConstraint(Sketcher.Constraint("DistanceX", 5, 3, 3, 3, Q("0.23 in")))
sketch5.addConstraint(Sketcher.Constraint("DistanceY", 4, 3, 6, 3, Q("2.83 in")))
sketch5.addConstraint(Sketcher.Constraint("DistanceX", 6, 3, 8, 3, Q("3.05 in")))
sketch5.addConstraint(Sketcher.Constraint("DistanceX", 15, 3, 13, 3, Q("0.23 in")))
sketch5.addConstraint(Sketcher.Constraint("DistanceX", 14, 3, 16, 3, Q("0.23 in")))
sketch5.addConstraint(Sketcher.Constraint("DistanceY", 17, 3, 19, 3, Q("0.67 in")))
sketch5.addConstraint(Sketcher.Constraint("DistanceY", 9, 3, -1, 1, Q("31.397 in")))
sketch5.addConstraint(Sketcher.Constraint("DistanceY", 31, 3, -1, 1, Q("6.603 in")))
sketch5.addConstraint(Sketcher.Constraint("DistanceX", 2, 3, 1, 3, Q("1.755 in")))
sketch5.addConstraint(Sketcher.Constraint("DistanceY", 3, 3, 17, 3, Q("22.4419 in")))
sketch5.addConstraint(Sketcher.Constraint("DistanceX", -1, 1, 0, 3, 50.7993))
sketch5.addConstraint(Sketcher.Constraint("DistanceY", 2, 3, -1, 1, 856.512))
sketch5.setExpression("Constraints[71]", "Params.sketch5_diameter")
sketch5.setExpression("Constraints[72]", "Params.sketch5_diameter2")
sketch5.setExpression("Constraints[73]", "Params.sketch5_diameter3")
pocket4 = body.newObject("PartDesign::Pocket", "Pocket003")
pocket4.Profile = sketch5
pocket4.Type = "ThroughAll"
pocket4.Reversed = True

doc.recompute()
